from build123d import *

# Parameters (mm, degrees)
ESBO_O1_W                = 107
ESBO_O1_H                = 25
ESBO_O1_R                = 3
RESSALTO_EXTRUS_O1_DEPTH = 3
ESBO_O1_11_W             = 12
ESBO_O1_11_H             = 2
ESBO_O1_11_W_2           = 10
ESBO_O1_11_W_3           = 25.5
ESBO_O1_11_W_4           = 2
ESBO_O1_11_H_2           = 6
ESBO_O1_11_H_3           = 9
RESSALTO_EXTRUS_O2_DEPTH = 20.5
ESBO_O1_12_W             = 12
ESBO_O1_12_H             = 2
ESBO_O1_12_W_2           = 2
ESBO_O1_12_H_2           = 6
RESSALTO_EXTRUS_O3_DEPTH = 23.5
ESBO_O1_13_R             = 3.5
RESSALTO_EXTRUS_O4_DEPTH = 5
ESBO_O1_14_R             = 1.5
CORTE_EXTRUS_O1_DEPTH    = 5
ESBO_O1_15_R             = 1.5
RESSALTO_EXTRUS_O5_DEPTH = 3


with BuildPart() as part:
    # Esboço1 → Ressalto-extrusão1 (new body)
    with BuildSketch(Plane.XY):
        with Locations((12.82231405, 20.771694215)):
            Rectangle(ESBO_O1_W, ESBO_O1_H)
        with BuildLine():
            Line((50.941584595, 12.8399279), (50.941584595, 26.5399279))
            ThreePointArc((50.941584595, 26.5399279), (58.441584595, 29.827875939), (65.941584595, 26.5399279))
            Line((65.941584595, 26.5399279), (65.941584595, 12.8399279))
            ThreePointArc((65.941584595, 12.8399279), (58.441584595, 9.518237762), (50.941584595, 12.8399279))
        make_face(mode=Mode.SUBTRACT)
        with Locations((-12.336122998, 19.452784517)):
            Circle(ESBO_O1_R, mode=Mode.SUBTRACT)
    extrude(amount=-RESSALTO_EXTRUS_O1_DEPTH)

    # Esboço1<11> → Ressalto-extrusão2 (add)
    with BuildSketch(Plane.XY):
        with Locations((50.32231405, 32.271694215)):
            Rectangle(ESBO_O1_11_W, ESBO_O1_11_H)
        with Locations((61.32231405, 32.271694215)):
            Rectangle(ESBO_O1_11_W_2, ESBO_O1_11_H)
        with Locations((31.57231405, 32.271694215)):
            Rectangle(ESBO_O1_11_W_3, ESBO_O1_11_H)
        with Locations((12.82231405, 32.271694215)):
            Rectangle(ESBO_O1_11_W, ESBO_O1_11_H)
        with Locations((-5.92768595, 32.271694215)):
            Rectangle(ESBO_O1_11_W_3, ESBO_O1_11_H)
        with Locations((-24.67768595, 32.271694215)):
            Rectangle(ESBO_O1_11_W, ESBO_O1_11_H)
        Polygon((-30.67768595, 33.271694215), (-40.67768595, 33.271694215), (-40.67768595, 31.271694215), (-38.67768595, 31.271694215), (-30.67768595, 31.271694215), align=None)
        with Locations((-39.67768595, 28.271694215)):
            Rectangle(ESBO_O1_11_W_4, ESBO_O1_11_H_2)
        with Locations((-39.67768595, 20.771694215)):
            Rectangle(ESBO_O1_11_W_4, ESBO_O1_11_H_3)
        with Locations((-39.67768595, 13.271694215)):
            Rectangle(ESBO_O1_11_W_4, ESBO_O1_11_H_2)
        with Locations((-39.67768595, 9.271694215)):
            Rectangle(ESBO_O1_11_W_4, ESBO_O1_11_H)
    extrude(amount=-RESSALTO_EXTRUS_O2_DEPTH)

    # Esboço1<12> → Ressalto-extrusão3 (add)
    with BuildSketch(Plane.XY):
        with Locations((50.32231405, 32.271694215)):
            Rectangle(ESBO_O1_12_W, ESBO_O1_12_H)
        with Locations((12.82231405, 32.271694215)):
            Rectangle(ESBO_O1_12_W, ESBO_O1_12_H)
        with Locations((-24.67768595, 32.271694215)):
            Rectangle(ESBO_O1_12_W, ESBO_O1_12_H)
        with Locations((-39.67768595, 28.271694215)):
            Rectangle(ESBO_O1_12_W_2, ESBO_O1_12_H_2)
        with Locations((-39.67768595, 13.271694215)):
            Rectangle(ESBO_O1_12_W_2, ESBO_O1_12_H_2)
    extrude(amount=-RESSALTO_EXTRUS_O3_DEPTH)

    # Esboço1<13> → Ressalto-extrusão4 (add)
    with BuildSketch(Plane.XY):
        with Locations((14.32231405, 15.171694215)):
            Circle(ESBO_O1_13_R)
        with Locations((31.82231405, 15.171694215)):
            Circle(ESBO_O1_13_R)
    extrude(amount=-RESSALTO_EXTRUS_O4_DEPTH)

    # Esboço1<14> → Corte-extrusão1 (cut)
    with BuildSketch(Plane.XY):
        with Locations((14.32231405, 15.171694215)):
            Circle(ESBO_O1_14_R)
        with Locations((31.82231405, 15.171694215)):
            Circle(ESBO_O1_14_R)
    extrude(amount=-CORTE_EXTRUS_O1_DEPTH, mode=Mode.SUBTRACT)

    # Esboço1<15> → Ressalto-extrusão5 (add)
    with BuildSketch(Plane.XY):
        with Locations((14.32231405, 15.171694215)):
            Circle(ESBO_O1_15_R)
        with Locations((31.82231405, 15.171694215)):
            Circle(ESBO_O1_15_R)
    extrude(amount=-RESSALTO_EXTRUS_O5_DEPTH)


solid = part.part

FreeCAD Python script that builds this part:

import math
import FreeCAD as App
import Part
import Sketcher
from FreeCAD import Vector

doc = App.newDocument("Part")
body = doc.addObject("PartDesign::Body", "Body")

sketch1 = body.newObject("Sketcher::SketchObject", "Sketch")
sketch1.AttachmentSupport = (doc.getObject("XY_Plane"), [""])
sketch1.MapMode = "FlatFace"
sketch1.addGeometry(Part.LineSegment(Vector(-40.7, 33.3, 0), Vector(-40.7, 8.3, 0)), False)
sketch1.addGeometry(Part.LineSegment(Vector(-40.7, 8.3, 0), Vector(66.3, 8.3, 0)), False)
sketch1.addGeometry(Part.LineSegment(Vector(66.3, 8.3, 0), Vector(66.3, 33.3, 0)), False)
sketch1.addGeometry(Part.LineSegment(Vector(66.3, 33.3, 0), Vector(-40.7, 33.3, 0)), False)
sketch1.addGeometry(Part.Circle(Vector(-12.3, 19.5, 0), Vector(0, 0, 1), 3), False)
sketch1.addGeometry(Part.ArcOfCircle(Part.Circle(Vector(58.4, 19.6, 0), Vector(0, 0, 1), 10.1), math.radians(-138), math.radians(-42)), False)
sketch1.addGeometry(Part.LineSegment(Vector(50.9, 12.8, 0), Vector(50.9, 26.5, 0)), False)
sketch1.addGeometry(Part.ArcOfCircle(Part.Circle(Vector(58.4, 19.6, 0), Vector(0, 0, 1), 10.2), math.radians(43), math.radians(137)), False)
sketch1.addGeometry(Part.LineSegment(Vector(65.9, 26.5, 0), Vector(65.9, 12.8, 0)), False)
sketch1.addConstraint(Sketcher.Constraint("Coincident", 0, 2, 1, 1))
sketch1.addConstraint(Sketcher.Constraint("Coincident", 1, 2, 2, 1))
sketch1.addConstraint(Sketcher.Constraint("Coincident", 2, 2, 3, 1))
sketch1.addConstraint(Sketcher.Constraint("Coincident", 3, 2, 0, 1))
sketch1.addConstraint(Sketcher.Constraint("Coincident", 5, 1, 6, 1))
sketch1.addConstraint(Sketcher.Constraint("Coincident", 6, 2, 7, 2))
sketch1.addConstraint(Sketcher.Constraint("Coincident", 7, 1, 8, 1))
sketch1.addConstraint(Sketcher.Constraint("Coincident", 8, 2, 5, 2))
sketch1.addConstraint(Sketcher.Constraint("Vertical", 0))
sketch1.addConstraint(Sketcher.Constraint("Horizontal", 1))
sketch1.addConstraint(Sketcher.Constraint("Vertical", 2))
sketch1.addConstraint(Sketcher.Constraint("Horizontal", 3))
sketch1.addConstraint(Sketcher.Constraint("Vertical", 6))
sketch1.addConstraint(Sketcher.Constraint("Vertical", 8))
sketch1.addConstraint(Sketcher.Constraint("Horizontal", 6, 2, 7, 1))
sketch1.addConstraint(Sketcher.Constraint("Horizontal", 5, 1, 8, 2))
sketch1.addConstraint(Sketcher.Constraint("Diameter", 4, 6.0))
sketch1.addConstraint(Sketcher.Constraint("DistanceX", 1, 1, 1, 2, 107.0))
sketch1.addConstraint(Sketcher.Constraint("DistanceY", 0, 2, 0, 1, 25.0))
sketch1.addConstraint(Sketcher.Constraint("DistanceY", 6, 1, 6, 2, 13.7))
sketch1.addConstraint(Sketcher.Constraint("DistanceX", 6, 2, 7, 1, 15.0))
sketch1.addConstraint(Sketcher.Constraint("Radius", 5, 10.12792))
sketch1.addConstraint(Sketcher.Constraint("Radius", 7, 10.197941))
sketch1.addConstraint(Sketcher.Constraint("DistanceY", 4, 3, 7, 3, 0.17715))
sketch1.addConstraint(Sketcher.Constraint("DistanceY", 0, 2, 4, 3, 11.18109))
sketch1.addConstraint(Sketcher.Constraint("DistanceX", 0, 2, 7, 3, 99.119271))
sketch1.addConstraint(Sketcher.Constraint("DistanceX", 4, 3, -1, 1, 12.336123))
sketch1.addConstraint(Sketcher.Constraint("DistanceY", -1, 1, 4, 3, 19.452785))
sketch1.addConstraint(Sketcher.Constraint("DistanceX", -1, 1, 5, 3, 58.441585))
pad1 = body.newObject("PartDesign::Pad", "Pad")
pad1.Profile = sketch1
pad1.Length = 3
pad1.Reversed = True

sketch2 = body.newObject("Sketcher::SketchObject", "Sketch001")
sketch2.AttachmentSupport = (doc.getObject("XY_Plane"), [""])
sketch2.MapMode = "FlatFace"
sketch2.addGeometry(Part.LineSegment(Vector(66.3, 31.3, 0), Vector(66.3, 33.3, 0)), False)
sketch2.addGeometry(Part.LineSegment(Vector(66.3, 33.3, 0), Vector(-40.7, 33.3, 0)), False)
sketch2.addGeometry(Part.LineSegment(Vector(-40.7, 33.3, 0), Vector(-40.7, 8.3, 0)), False)
sketch2.addGeometry(Part.LineSegment(Vector(-40.7, 8.3, 0), Vector(-38.7, 8.3, 0)), False)
sketch2.addGeometry(Part.LineSegment(Vector(-38.7, 8.3, 0), Vector(-38.7, 31.3, 0)), False)
sketch2.addGeometry(Part.LineSegment(Vector(-38.7, 31.3, 0), Vector(66.3, 31.3, 0)), False)
sketch2.addConstraint(Sketcher.Constraint("Coincident", 0, 2, 1, 1))
sketch2.addConstraint(Sketcher.Constraint("Coincident", 1, 2, 2, 1))
sketch2.addConstraint(Sketcher.Constraint("Coincident", 2, 2, 3, 1))
sketch2.addConstraint(Sketcher.Constraint("Coincident", 3, 2, 4, 1))
sketch2.addConstraint(Sketcher.Constraint("Coincident", 4, 2, 5, 1))
sketch2.addConstraint(Sketcher.Constraint("Coincident", 5, 2, 0, 1))
sketch2.addConstraint(Sketcher.Constraint("Vertical", 0))
sketch2.addConstraint(Sketcher.Constraint("Horizontal", 1))
sketch2.addConstraint(Sketcher.Constraint("Vertical", 2))
sketch2.addConstraint(Sketcher.Constraint("Horizontal", 3))
sketch2.addConstraint(Sketcher.Constraint("Vertical", 4))
sketch2.addConstraint(Sketcher.Constraint("Horizontal", 5))
sketch2.addConstraint(Sketcher.Constraint("Equal", 3, 0))
sketch2.addConstraint(Sketcher.Constraint("DistanceX", 1, 2, 1, 1, 107.0))
sketch2.addConstraint(Sketcher.Constraint("DistanceX", 3, 1, 3, 2, 2.0))
sketch2.addConstraint(Sketcher.Constraint("DistanceY", 2, 2, 2, 1, 25.0))
sketch2.addConstraint(Sketcher.Constraint("DistanceX", -1, 1, 0, 2, 66.322314))
sketch2.addConstraint(Sketcher.Constraint("DistanceY", -1, 1, 0, 2, 33.271694))
pad2 = body.newObject("PartDesign::Pad", "Pad001")
pad2.Profile = sketch2
pad2.Length = 20.5
pad2.Reversed = True

sketch3 = body.newObject("Sketcher::SketchObject", "Sketch002")
sketch3.AttachmentSupport = (doc.getObject("XY_Plane"), [""])
sketch3.MapMode = "FlatFace"
sketch3.addGeometry(Part.LineSegment(Vector(44.3, 33.3, 0), Vector(44.3, 31.3, 0)), False)
sketch3.addGeometry(Part.LineSegment(Vector(44.3, 31.3, 0), Vector(56.3, 31.3, 0)), False)
sketch3.addGeometry(Part.LineSegment(Vector(56.3, 31.3, 0), Vector(56.3, 33.3, 0)), False)
sketch3.addGeometry(Part.LineSegment(Vector(56.3, 33.3, 0), Vector(44.3, 33.3, 0)), False)
sketch3.addGeometry(Part.LineSegment(Vector(6.8, 33.3, 0), Vector(6.8, 31.3, 0)), False)
sketch3.addGeometry(Part.LineSegment(Vector(6.8, 31.3, 0), Vector(18.8, 31.3, 0)), False)
sketch3.addGeometry(Part.LineSegment(Vector(18.8, 31.3, 0), Vector(18.8, 33.3, 0)), False)
sketch3.addGeometry(Part.LineSegment(Vector(18.8, 33.3, 0), Vector(6.8, 33.3, 0)), False)
sketch3.addGeometry(Part.LineSegment(Vector(-30.7, 33.3, 0), Vector(-30.7, 31.3, 0)), False)
sketch3.addGeometry(Part.LineSegment(Vector(-30.7, 31.3, 0), Vector(-18.7, 31.3, 0)), False)
sketch3.addGeometry(Part.LineSegment(Vector(-18.7, 31.3, 0), Vector(-18.7, 33.3, 0)), False)
sketch3.addGeometry(Part.LineSegment(Vector(-18.7, 33.3, 0), Vector(-30.7, 33.3, 0)), False)
sketch3.addGeometry(Part.LineSegment(Vector(-40.7, 31.3, 0), Vector(-40.7, 25.3, 0)), False)
sketch3.addGeometry(Part.LineSegment(Vector(-40.7, 25.3, 0), Vector(-38.7, 25.3, 0)), False)
sketch3.addGeometry(Part.LineSegment(Vector(-38.7, 25.3, 0), Vector(-38.7, 31.3, 0)), False)
sketch3.addGeometry(Part.LineSegment(Vector(-38.7, 31.3, 0), Vector(-40.7, 31.3, 0)), False)
sketch3.addGeometry(Part.LineSegment(Vector(-40.7, 16.3, 0), Vector(-40.7, 10.3, 0)), False)
sketch3.addGeometry(Part.LineSegment(Vector(-40.7, 10.3, 0), Vector(-38.7, 10.3, 0)), False)
sketch3.addGeometry(Part.LineSegment(Vector(-38.7, 10.3, 0), Vector(-38.7, 16.3, 0)), False)
sketch3.addGeometry(Part.LineSegment(Vector(-38.7, 16.3, 0), Vector(-40.7, 16.3, 0)), False)
sketch3.addConstraint(Sketcher.Constraint("Coincident", 0, 2, 1, 1))
sketch3.addConstraint(Sketcher.Constraint("Coincident", 1, 2, 2, 1))
sketch3.addConstraint(Sketcher.Constraint("Coincident", 2, 2, 3, 1))
sketch3.addConstraint(Sketcher.Constraint("Coincident", 3, 2, 0, 1))
sketch3.addConstraint(Sketcher.Constraint("Coincident", 4, 2, 5, 1))
sketch3.addConstraint(Sketcher.Constraint("Coincident", 5, 2, 6, 1))
sketch3.addConstraint(Sketcher.Constraint("Coincident", 6, 2, 7, 1))
sketch3.addConstraint(Sketcher.Constraint("Coincident", 7, 2, 4, 1))
sketch3.addConstraint(Sketcher.Constraint("Coincident", 8, 2, 9, 1))
sketch3.addConstraint(Sketcher.Constraint("Coincident", 9, 2, 10, 1))
sketch3.addConstraint(Sketcher.Constraint("Coincident", 10, 2, 11, 1))
sketch3.addConstraint(Sketcher.Constraint("Coincident", 11, 2, 8, 1))
sketch3.addConstraint(Sketcher.Constraint("Coincident", 12, 2, 13, 1))
sketch3.addConstraint(Sketcher.Constraint("Coincident", 13, 2, 14, 1))
sketch3.addConstraint(Sketcher.Constraint("Coincident", 14, 2, 15, 1))
sketch3.addConstraint(Sketcher.Constraint("Coincident", 15, 2, 12, 1))
sketch3.addConstraint(Sketcher.Constraint("Coincident", 16, 2, 17, 1))
sketch3.addConstraint(Sketcher.Constraint("Coincident", 17, 2, 18, 1))
sketch3.addConstraint(Sketcher.Constraint("Coincident", 18, 2, 19, 1))
sketch3.addConstraint(Sketcher.Constraint("Coincident", 19, 2, 16, 1))
sketch3.addConstraint(Sketcher.Constraint("Vertical", 0))
sketch3.addConstraint(Sketcher.Constraint("Horizontal", 1))
sketch3.addConstraint(Sketcher.Constraint("Vertical", 2))
sketch3.addConstraint(Sketcher.Constraint("Horizontal", 3))
sketch3.addConstraint(Sketcher.Constraint("Vertical", 4))
sketch3.addConstraint(Sketcher.Constraint("Horizontal", 5))
sketch3.addConstraint(Sketcher.Constraint("Vertical", 6))
sketch3.addConstraint(Sketcher.Constraint("Horizontal", 7))
sketch3.addConstraint(Sketcher.Constraint("Vertical", 8))
sketch3.addConstraint(Sketcher.Constraint("Horizontal", 9))
sketch3.addConstraint(Sketcher.Constraint("Vertical", 10))
sketch3.addConstraint(Sketcher.Constraint("Horizontal", 11))
sketch3.addConstraint(Sketcher.Constraint("Vertical", 12))
sketch3.addConstraint(Sketcher.Constraint("Horizontal", 13))
sketch3.addConstraint(Sketcher.Constraint("Vertical", 14))
sketch3.addConstraint(Sketcher.Constraint("Horizontal", 15))
sketch3.addConstraint(Sketcher.Constraint("Vertical", 16))
sketch3.addConstraint(Sketcher.Constraint("Horizontal", 17))
sketch3.addConstraint(Sketcher.Constraint("Vertical", 18))
sketch3.addConstraint(Sketcher.Constraint("Horizontal", 19))
sketch3.addConstraint(Sketcher.Constraint("Horizontal", 1, 2, 4, 2))
sketch3.addConstraint(Sketcher.Constraint("Horizontal", 3, 2, 6, 2))
sketch3.addConstraint(Sketcher.Constraint("Horizontal", 5, 2, 8, 2))
sketch3.addConstraint(Sketcher.Constraint("Horizontal", 7, 2, 10, 2))
sketch3.addConstraint(Sketcher.Constraint("Horizontal", 9, 2, 14, 2))
sketch3.addConstraint(Sketcher.Constraint("Vertical", 15, 2, 16, 2))
sketch3.addConstraint(Sketcher.Constraint("Vertical", 14, 2, 17, 2))
sketch3.addConstraint(Sketcher.Constraint("Equal", 3, 5))
sketch3.addConstraint(Sketcher.Constraint("Equal", 7, 9))
sketch3.addConstraint(Sketcher.Constraint("Equal", 19, 0))
sketch3.addConstraint(Sketcher.Constraint("Equal", 14, 16))
sketch3.addConstraint(Sketcher.Constraint("DistanceX", 1, 1, 1, 2, 12.0))
sketch3.addConstraint(Sketcher.Constraint("DistanceX", 13, 1, 13, 2, 2.0))
sketch3.addConstraint(Sketcher.Constraint("DistanceY", 12, 2, 12, 1, 6.0))
sketch3.addConstraint(Sketcher.Constraint("DistanceX", 8, 2, 0, 2, 75.0))
sketch3.addConstraint(Sketcher.Constraint("DistanceX", 12, 2, 8, 2, 10.0))
sketch3.addConstraint(Sketcher.Constraint("DistanceY", 16, 2, 12, 2, 15.0))
sketch3.addConstraint(Sketcher.Constraint("DistanceX", 4, 2, 0, 2, 37.5))
sketch3.addConstraint(Sketcher.Constraint("DistanceX", -1, 1, 0, 2, 44.322314))
sketch3.addConstraint(Sketcher.Constraint("DistanceY", -1, 1, 0, 2, 31.271694))
pad3 = body.newObject("PartDesign::Pad", "Pad002")
pad3.Profile = sketch3
pad3.Length = 23.5
pad3.Reversed = True

sketch4 = body.newObject("Sketcher::SketchObject", "Sketch003")
sketch4.AttachmentSupport = (doc.getObject("XY_Plane"), [""])
sketch4.MapMode = "FlatFace"
sketch4.addGeometry(Part.Circle(Vector(14.3, 15.2, 0), Vector(0, 0, 1), 3.5), False)
sketch4.addGeometry(Part.Circle(Vector(31.8, 15.2, 0), Vector(0, 0, 1), 3.5), False)
sketch4.addConstraint(Sketcher.Constraint("Equal", 0, 1))
sketch4.addConstraint(Sketcher.Constraint("Horizontal", 0, 3, 1, 3))
sketch4.addConstraint(Sketcher.Constraint("Diameter", 0, 7.0))
sketch4.addConstraint(Sketcher.Constraint("DistanceX", 0, 3, 1, 3, 17.5))
sketch4.addConstraint(Sketcher.Constraint("DistanceX", -1, 1, 0, 3, 14.322314))
sketch4.addConstraint(Sketcher.Constraint("DistanceY", -1, 1, 0, 3, 15.171694))
pad4 = body.newObject("PartDesign::Pad", "Pad003")
pad4.Profile = sketch4
pad4.Length = 5
pad4.Reversed = True

sketch5 = body.newObject("Sketcher::SketchObject", "Sketch004")
sketch5.AttachmentSupport = (doc.getObject("XY_Plane"), [""])
sketch5.MapMode = "FlatFace"
sketch5.addGeometry(Part.Circle(Vector(14.3, 15.2, 0), Vector(0, 0, 1), 1.5), False)
sketch5.addGeometry(Part.Circle(Vector(31.8, 15.2, 0), Vector(0, 0, 1), 1.5), False)
sketch5.addConstraint(Sketcher.Constraint("Equal", 0, 1))
sketch5.addConstraint(Sketcher.Constraint("Horizontal", 0, 3, 1, 3))
sketch5.addConstraint(Sketcher.Constraint("Diameter", 0, 3.0))
sketch5.addConstraint(Sketcher.Constraint("DistanceX", 0, 3, 1, 3, 17.5))
sketch5.addConstraint(Sketcher.Constraint("DistanceX", -1, 1, 0, 3, 14.322314))
sketch5.addConstraint(Sketcher.Constraint("DistanceY", -1, 1, 0, 3, 15.171694))
pocket1 = body.newObject("PartDesign::Pocket", "Pocket")
pocket1.Profile = sketch5
pocket1.Length = 5

sketch6 = body.newObject("Sketcher::SketchObject", "Sketch005")
sketch6.AttachmentSupport = (doc.getObject("XY_Plane"), [""])
sketch6.MapMode = "FlatFace"
sketch6.addGeometry(Part.Circle(Vector(14.3, 15.2, 0), Vector(0, 0, 1), 1.5), False)
sketch6.addGeometry(Part.Circle(Vector(31.8, 15.2, 0), Vector(0, 0, 1), 1.5), False)
sketch6.addConstraint(Sketcher.Constraint("Equal", 0, 1))
sketch6.addConstraint(Sketcher.Constraint("Horizontal", 0, 3, 1, 3))
sketch6.addConstraint(Sketcher.Constraint("Diameter", 0, 3.0))
sketch6.addConstraint(Sketcher.Constraint("DistanceX", 0, 3, 1, 3, 17.5))
sketch6.addConstraint(Sketcher.Constraint("DistanceX", -1, 1, 0, 3, 14.322314))
sketch6.addConstraint(Sketcher.Constraint("DistanceY", -1, 1, 0, 3, 15.171694))
pad5 = body.newObject("PartDesign::Pad", "Pad004")
pad5.Profile = sketch6
pad5.Length = 3
pad5.Reversed = True

doc.recompute()
